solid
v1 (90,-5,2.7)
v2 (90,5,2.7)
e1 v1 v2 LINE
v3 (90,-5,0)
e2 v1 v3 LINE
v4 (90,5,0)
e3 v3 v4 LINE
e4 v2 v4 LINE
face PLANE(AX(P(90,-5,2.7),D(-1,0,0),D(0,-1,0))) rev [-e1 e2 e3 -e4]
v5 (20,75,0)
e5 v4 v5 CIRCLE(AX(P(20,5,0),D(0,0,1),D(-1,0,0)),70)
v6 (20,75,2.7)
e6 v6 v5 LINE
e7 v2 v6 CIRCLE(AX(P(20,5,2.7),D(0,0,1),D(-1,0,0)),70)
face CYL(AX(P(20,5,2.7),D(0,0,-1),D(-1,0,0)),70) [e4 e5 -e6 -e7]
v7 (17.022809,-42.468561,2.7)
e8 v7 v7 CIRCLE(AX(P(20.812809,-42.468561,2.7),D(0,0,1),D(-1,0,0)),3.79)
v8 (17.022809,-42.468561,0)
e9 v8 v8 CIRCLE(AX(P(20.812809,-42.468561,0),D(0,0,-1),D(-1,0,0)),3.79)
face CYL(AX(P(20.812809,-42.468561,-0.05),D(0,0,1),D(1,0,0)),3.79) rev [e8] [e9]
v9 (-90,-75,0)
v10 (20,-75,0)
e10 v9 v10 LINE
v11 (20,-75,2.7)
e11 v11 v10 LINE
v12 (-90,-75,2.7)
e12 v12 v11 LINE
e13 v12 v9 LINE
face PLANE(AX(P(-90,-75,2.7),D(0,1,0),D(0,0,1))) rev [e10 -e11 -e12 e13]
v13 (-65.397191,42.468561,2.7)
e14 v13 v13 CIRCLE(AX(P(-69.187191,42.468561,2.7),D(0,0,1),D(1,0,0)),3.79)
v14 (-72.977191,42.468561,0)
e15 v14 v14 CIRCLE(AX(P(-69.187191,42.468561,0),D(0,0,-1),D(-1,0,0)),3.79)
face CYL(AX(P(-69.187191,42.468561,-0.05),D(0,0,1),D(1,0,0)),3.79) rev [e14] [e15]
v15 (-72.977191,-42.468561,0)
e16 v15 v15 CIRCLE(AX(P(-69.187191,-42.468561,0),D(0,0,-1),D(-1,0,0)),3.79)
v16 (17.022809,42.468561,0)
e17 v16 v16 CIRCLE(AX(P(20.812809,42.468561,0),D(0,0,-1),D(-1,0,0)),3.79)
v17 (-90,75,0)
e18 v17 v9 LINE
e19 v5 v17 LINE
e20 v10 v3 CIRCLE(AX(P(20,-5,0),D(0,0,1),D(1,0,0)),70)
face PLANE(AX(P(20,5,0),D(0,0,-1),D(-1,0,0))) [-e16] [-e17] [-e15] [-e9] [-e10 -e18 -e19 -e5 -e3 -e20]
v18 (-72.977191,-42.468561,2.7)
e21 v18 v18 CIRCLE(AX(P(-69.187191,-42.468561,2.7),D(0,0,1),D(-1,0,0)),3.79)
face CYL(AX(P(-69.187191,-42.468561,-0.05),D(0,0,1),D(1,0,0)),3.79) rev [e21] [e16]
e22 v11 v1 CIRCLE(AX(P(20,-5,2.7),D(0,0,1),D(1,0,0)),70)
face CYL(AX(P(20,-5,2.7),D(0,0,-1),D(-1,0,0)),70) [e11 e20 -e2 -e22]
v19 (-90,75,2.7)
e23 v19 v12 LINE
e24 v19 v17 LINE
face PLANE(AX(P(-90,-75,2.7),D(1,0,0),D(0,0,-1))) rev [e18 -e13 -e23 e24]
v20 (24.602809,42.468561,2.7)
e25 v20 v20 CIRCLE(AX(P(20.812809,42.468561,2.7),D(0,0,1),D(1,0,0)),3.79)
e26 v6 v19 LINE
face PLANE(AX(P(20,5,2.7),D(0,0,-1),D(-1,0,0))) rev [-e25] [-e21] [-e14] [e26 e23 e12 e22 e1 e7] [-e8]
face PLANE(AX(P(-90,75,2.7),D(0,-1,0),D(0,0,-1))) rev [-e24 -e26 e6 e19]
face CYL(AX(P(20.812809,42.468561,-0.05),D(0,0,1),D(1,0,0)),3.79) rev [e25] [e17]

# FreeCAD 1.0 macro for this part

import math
import FreeCAD as App
import Part
import Sketcher

V = App.Vector

doc = App.newDocument("Part")
body = doc.addObject("PartDesign::Body", "Body")

# Sketch on XY plane
sketch1 = body.newObject("Sketcher::SketchObject", "Sketch")
sketch1.AttachmentSupport = (doc.getObject("XY_Plane"), [""])
sketch1.MapMode = "FlatFace"
sketch1.addGeometry(Part.LineSegment(V(-90, -75, 0), V(20, -75, 0)), False)
sketch1.addGeometry(Part.ArcOfCircle(Part.Circle(V(20, -5, 0), V(0, 0, 1), 70), math.radians(-90), math.radians(0)), False)
sketch1.addGeometry(Part.LineSegment(V(90, -5, 0), V(90, 5, 0)), False)
sketch1.addGeometry(Part.ArcOfCircle(Part.Circle(V(20, 5, 0), V(0, 0, 1), 70), math.radians(0), math.radians(90)), False)
sketch1.addGeometry(Part.LineSegment(V(20, 75, 0), V(-90, 75, 0)), False)
sketch1.addGeometry(Part.LineSegment(V(-90, 75, 0), V(-90, -75, 0)), False)
sketch1.addConstraint(Sketcher.Constraint("Tangent", 0, 2, 1, 1))
sketch1.addConstraint(Sketcher.Constraint("Tangent", 1, 2, 2, 1))
sketch1.addConstraint(Sketcher.Constraint("Tangent", 2, 2, 3, 1))
sketch1.addConstraint(Sketcher.Constraint("Tangent", 3, 2, 4, 1))
sketch1.addConstraint(Sketcher.Constraint("Coincident", 4, 2, 5, 1))
sketch1.addConstraint(Sketcher.Constraint("Coincident", 5, 2, 0, 1))
sketch1.addConstraint(Sketcher.Constraint("Horizontal", 0))
sketch1.addConstraint(Sketcher.Constraint("Vertical", 2))
sketch1.addConstraint(Sketcher.Constraint("Horizontal", 4))
sketch1.addConstraint(Sketcher.Constraint("Vertical", 5))
sketch1.addConstraint(Sketcher.Constraint("Equal", 1, 3))
sketch1.addConstraint(Sketcher.Constraint("Radius", 1, 70.0))
sketch1.addConstraint(Sketcher.Constraint("DistanceX", 0, 1, 0, 2, 110.0))
sketch1.addConstraint(Sketcher.Constraint("DistanceY", 2, 1, 2, 2, 10.0))
sketch1.addConstraint(Sketcher.Constraint("DistanceX", -1, 1, 1, 3, 20.0))
sketch1.addConstraint(Sketcher.Constraint("DistanceY", 1, 3, -1, 1, 5.0))
pad1 = body.newObject("PartDesign::Pad", "Pad")
pad1.Profile = sketch1
pad1.Length = 2.7

# Sketch on XY plane
sketch2 = body.newObject("Sketcher::SketchObject", "Sketch001")
sketch2.AttachmentSupport = (doc.getObject("XY_Plane"), [""])
sketch2.MapMode = "FlatFace"
sketch2.AttachmentOffset = App.Placement(V(0, 0, 2.7), App.Rotation())
sketch2.addGeometry(Part.Circle(V(-69.2, 42.5, 0), V(0, 0, 1), 3.8), False)
sketch2.addGeometry(Part.Circle(V(20.8, 42.5, 0), V(0, 0, 1), 3.8), False)
sketch2.addGeometry(Part.Circle(V(20.8, -42.5, 0), V(0, 0, 1), 3.8), False)
sketch2.addGeometry(Part.Circle(V(-69.2, -42.5, 0), V(0, 0, 1), 3.8), False)
sketch2.addConstraint(Sketcher.Constraint("Equal", 0, 1))
sketch2.addConstraint(Sketcher.Constraint("Equal", 1, 2))
sketch2.addConstraint(Sketcher.Constraint("Equal", 2, 3))
sketch2.addConstraint(Sketcher.Constraint("Symmetric", 1, 3, 2, 3, -1))
sketch2.addConstraint(Sketcher.Constraint("Symmetric", 0, 3, 3, 3, -1))
sketch2.addConstraint(Sketcher.Constraint("Horizontal", 0, 3, 1, 3))
sketch2.addConstraint(Sketcher.Constraint("Diameter", 0, 7.58))
sketch2.addConstraint(Sketcher.Constraint("DistanceX", 0, 3, 1, 3, 90.0))
sketch2.addConstraint(Sketcher.Constraint("DistanceX", 0, 3, -1, 1, 69.187191))
sketch2.addConstraint(Sketcher.Constraint("DistanceY", -1, 1, 0, 3, 42.468561))
pocket1 = body.newObject("PartDesign::Pocket", "Pocket")
pocket1.Profile = sketch2
pocket1.Length = 2.75

doc.recompute()
